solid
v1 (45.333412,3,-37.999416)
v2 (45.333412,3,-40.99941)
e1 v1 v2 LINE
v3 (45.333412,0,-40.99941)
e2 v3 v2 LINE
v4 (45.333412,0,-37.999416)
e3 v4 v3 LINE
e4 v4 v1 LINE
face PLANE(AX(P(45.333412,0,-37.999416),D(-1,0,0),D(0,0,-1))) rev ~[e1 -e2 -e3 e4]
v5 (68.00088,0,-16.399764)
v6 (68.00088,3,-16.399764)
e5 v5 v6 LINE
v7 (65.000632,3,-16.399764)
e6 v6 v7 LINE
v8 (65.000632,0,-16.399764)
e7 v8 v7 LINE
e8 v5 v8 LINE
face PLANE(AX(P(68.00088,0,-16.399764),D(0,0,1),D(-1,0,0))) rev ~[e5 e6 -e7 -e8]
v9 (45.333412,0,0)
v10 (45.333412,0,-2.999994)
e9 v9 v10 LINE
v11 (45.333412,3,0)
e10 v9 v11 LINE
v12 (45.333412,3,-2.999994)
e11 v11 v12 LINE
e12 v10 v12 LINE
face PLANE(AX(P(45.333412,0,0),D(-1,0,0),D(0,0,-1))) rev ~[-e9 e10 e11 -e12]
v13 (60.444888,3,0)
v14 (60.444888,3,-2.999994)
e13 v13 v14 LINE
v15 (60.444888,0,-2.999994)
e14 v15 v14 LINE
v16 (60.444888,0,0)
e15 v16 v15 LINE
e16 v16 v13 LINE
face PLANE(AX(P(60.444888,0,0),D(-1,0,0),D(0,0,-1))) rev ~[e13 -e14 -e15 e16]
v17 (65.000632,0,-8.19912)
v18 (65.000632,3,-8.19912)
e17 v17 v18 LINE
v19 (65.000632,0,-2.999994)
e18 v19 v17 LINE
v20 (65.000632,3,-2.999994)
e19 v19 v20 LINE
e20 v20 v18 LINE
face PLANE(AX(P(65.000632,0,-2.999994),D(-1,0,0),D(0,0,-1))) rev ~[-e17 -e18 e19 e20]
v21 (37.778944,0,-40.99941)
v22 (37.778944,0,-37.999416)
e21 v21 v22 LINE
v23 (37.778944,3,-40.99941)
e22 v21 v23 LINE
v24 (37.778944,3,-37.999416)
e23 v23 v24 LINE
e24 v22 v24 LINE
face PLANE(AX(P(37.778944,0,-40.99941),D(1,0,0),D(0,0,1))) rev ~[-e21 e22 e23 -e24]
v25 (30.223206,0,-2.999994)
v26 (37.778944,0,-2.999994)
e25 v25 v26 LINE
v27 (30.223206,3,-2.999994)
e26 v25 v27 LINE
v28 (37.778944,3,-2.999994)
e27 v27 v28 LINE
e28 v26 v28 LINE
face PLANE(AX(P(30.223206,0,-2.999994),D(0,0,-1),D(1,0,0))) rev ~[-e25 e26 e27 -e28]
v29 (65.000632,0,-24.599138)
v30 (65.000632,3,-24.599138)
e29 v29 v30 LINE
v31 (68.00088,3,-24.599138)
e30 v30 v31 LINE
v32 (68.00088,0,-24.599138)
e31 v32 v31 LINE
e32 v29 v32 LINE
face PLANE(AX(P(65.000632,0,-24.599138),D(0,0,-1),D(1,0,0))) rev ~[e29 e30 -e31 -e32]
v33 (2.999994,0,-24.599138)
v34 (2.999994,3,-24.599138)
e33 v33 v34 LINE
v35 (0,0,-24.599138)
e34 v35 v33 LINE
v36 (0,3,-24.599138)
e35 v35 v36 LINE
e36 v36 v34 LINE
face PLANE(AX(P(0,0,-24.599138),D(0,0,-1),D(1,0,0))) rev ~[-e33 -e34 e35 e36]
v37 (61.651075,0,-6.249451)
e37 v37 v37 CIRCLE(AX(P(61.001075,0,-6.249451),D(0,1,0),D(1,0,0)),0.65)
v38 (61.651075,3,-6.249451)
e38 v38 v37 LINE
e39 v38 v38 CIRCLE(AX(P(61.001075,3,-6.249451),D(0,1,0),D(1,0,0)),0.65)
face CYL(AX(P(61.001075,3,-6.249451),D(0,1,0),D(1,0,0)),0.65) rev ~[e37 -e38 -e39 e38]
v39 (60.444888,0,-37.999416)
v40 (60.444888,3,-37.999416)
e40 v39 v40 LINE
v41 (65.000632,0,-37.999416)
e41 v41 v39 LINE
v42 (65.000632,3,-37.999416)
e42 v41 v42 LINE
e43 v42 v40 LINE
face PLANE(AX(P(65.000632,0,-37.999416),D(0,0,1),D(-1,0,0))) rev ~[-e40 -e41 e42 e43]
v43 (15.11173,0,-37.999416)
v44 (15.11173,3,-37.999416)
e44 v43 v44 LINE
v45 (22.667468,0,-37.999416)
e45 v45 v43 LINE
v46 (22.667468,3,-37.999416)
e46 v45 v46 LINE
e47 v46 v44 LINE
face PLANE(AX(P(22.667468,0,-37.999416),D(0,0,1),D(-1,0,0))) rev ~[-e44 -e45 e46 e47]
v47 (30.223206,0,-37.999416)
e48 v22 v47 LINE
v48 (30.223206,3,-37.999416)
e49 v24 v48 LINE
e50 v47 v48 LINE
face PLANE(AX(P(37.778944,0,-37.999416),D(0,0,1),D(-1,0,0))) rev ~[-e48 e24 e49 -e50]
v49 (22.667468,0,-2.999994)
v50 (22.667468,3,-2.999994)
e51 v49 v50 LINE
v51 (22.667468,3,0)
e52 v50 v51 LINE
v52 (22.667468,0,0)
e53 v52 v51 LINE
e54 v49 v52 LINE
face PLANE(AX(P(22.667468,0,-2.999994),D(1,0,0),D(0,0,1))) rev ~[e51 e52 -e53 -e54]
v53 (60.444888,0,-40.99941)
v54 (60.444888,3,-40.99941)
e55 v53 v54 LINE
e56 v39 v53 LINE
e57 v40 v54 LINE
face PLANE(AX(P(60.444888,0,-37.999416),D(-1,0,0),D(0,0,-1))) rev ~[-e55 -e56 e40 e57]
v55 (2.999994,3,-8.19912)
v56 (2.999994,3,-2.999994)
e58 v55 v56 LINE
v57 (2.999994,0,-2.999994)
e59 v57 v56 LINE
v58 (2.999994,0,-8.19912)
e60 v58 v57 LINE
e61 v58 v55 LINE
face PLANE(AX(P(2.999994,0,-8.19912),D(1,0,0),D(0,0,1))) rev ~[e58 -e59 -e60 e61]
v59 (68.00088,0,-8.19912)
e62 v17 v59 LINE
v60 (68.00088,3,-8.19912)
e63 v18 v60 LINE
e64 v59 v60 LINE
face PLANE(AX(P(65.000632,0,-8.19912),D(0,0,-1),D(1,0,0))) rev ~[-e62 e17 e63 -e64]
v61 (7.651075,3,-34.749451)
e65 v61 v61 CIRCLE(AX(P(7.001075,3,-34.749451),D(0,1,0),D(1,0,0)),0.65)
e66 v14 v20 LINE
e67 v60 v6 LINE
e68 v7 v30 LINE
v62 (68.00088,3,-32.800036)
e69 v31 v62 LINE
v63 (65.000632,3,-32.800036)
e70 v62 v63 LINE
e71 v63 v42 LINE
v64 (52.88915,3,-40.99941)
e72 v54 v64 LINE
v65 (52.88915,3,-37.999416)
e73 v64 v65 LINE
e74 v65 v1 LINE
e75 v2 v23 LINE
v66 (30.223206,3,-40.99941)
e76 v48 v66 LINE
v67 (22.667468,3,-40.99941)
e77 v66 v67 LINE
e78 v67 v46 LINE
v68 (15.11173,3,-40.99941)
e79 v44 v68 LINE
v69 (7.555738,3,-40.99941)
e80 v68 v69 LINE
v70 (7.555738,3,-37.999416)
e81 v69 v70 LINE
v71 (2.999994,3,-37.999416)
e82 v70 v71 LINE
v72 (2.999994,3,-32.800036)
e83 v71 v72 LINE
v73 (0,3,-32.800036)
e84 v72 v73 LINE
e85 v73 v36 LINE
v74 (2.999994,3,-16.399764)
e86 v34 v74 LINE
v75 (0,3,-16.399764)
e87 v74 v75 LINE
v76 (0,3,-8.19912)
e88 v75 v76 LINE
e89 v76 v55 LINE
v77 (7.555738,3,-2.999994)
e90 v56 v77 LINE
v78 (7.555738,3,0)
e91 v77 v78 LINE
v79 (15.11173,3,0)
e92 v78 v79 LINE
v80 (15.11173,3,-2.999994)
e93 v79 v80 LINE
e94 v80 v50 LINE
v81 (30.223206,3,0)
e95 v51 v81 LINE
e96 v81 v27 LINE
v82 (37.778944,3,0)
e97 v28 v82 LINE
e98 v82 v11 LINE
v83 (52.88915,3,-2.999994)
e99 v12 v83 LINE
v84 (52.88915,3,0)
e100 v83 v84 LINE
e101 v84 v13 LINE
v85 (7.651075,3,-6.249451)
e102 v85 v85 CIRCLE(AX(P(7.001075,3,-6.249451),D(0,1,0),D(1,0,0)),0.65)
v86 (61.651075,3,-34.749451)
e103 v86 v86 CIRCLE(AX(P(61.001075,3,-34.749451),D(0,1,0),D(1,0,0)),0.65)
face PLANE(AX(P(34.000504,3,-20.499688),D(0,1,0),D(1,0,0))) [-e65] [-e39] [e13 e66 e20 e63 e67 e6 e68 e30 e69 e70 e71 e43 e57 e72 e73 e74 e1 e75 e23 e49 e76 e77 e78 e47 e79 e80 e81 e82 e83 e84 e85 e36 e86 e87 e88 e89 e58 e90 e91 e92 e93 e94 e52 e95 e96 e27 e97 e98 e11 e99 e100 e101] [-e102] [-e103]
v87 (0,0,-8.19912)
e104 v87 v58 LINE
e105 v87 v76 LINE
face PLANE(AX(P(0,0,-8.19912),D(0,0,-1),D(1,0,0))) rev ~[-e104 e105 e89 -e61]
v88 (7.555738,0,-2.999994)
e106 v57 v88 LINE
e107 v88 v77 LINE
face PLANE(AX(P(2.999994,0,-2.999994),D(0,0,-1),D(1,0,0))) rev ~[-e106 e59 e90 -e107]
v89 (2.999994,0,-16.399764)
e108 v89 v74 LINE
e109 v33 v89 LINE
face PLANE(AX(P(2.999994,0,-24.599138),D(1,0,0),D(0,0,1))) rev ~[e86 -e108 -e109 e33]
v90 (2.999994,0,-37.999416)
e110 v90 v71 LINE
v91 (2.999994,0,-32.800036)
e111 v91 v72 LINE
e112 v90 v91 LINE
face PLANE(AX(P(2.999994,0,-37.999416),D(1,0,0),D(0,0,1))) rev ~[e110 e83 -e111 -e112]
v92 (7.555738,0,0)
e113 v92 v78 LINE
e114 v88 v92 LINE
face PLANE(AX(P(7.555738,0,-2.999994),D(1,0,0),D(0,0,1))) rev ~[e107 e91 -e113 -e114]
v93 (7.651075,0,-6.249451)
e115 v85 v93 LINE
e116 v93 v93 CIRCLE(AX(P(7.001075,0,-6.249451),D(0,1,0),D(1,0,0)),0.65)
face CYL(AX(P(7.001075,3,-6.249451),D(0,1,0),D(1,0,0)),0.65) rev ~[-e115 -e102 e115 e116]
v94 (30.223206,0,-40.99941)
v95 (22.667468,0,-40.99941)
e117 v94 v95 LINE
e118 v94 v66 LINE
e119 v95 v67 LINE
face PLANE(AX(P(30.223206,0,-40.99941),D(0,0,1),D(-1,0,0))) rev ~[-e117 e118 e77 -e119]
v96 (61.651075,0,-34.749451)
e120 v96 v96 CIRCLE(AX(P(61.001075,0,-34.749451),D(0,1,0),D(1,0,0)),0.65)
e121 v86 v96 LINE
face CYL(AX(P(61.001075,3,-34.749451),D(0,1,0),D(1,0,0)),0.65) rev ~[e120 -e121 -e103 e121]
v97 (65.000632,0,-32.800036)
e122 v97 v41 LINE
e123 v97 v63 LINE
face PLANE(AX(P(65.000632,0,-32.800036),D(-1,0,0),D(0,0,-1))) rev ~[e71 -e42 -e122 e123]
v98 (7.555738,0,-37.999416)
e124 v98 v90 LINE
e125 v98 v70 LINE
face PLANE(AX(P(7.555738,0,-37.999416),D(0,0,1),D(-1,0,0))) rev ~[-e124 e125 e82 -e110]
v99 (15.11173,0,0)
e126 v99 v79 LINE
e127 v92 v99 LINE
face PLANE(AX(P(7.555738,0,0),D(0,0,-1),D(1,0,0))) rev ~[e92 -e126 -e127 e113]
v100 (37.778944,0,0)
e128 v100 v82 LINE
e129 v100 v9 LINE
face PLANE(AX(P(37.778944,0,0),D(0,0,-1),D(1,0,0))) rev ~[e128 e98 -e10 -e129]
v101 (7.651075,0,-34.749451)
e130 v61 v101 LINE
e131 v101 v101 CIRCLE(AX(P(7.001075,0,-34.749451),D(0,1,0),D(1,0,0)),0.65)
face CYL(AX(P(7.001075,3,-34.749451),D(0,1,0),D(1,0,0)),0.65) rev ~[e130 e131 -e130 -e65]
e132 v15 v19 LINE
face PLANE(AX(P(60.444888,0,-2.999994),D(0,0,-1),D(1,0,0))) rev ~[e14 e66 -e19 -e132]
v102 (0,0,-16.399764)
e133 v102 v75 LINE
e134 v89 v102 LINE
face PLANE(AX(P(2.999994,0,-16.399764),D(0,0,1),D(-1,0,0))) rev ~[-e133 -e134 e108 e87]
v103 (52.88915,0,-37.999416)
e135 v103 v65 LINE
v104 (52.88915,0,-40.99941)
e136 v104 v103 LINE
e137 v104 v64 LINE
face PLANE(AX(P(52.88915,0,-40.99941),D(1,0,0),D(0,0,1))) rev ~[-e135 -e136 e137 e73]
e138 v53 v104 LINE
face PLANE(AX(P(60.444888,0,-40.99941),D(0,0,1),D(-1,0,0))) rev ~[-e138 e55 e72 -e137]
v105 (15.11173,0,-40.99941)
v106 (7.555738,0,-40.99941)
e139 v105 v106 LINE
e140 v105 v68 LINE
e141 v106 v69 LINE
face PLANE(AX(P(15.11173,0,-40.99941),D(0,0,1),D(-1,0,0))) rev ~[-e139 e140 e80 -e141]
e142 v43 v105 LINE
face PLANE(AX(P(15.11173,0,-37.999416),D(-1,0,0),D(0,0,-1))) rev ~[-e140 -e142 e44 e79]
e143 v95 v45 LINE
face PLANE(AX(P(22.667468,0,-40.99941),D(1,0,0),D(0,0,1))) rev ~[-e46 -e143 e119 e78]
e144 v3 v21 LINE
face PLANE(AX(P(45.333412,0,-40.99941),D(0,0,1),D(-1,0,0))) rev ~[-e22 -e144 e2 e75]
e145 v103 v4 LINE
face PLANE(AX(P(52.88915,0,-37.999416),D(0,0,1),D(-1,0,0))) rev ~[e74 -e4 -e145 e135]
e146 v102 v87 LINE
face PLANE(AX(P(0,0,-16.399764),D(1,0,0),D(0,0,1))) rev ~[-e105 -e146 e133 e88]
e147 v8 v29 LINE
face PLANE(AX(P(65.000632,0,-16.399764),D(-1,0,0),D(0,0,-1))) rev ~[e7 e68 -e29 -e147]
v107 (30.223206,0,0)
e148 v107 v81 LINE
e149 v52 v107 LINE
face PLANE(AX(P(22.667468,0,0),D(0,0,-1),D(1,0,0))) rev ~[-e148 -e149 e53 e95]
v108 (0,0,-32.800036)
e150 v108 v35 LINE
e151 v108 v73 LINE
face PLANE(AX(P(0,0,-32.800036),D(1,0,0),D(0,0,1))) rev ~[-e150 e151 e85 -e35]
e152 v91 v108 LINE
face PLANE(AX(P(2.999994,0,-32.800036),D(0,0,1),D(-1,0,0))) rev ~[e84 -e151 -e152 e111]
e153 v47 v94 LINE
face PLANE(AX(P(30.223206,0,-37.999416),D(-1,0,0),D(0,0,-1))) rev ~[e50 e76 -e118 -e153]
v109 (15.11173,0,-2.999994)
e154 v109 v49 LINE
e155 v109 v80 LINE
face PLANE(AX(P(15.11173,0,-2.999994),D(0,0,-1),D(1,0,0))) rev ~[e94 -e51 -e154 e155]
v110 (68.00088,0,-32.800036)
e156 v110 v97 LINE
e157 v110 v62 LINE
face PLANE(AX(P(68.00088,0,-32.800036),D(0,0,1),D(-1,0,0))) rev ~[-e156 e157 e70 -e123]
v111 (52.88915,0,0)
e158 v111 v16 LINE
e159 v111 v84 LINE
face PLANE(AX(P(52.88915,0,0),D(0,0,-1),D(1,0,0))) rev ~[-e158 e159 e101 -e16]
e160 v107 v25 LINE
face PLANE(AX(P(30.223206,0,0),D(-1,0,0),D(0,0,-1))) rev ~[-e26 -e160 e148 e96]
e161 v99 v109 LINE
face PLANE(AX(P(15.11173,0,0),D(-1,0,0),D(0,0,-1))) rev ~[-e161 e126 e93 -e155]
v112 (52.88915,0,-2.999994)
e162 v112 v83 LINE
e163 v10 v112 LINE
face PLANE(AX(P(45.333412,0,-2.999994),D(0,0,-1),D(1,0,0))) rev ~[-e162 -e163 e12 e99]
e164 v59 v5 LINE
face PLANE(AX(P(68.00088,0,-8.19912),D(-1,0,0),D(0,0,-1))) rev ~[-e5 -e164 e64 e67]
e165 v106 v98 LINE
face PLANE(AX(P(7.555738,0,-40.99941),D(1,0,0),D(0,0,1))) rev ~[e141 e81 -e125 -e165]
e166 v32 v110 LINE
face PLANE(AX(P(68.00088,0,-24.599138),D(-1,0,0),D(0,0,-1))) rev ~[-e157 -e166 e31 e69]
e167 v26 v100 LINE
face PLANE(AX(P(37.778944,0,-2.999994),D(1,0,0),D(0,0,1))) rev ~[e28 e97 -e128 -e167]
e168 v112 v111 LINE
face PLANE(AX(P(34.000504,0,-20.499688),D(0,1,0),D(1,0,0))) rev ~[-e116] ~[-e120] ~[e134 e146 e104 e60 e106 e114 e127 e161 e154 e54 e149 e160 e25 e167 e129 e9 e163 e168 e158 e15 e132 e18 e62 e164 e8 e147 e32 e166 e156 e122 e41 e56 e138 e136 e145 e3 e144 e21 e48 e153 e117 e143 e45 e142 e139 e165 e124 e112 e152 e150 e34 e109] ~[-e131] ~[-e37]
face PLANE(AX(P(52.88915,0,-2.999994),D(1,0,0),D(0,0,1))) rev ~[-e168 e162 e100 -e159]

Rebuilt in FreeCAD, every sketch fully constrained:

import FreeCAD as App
import Part
import Sketcher
Q = App.Units.Quantity


def add_polygon(sketch, points):
    """Adds a closed chain of lines whose ends are joined by coincident constraints."""
    first, n = sketch.GeometryCount, len(points)
    for a, b in zip(points, points[1:] + points[:1]):
        sketch.addGeometry(Part.LineSegment(App.Vector(*a, 0), App.Vector(*b, 0)), False)
    for i in range(n):
        sketch.addConstraint(Sketcher.Constraint("Coincident", first + i, 2, first + (i + 1) % n, 1))

doc = App.newDocument("Part")
body = doc.addObject("PartDesign::Body", "Body")

# Sketch on XZ plane
sketch1 = doc.addObject("Sketcher::SketchObject", "Sketch")
body.addObject(sketch1)
sketch1.AttachmentSupport = (doc.XZ_Plane, [""])
sketch1.MapMode = "FlatFace"
add_polygon(sketch1, [(2.999994, -37.999416), (2.999994, -32.800036), (0, -32.800036), (0, -24.599138), (2.999994, -24.599138), (2.999994, -16.399764), (0, -16.399764), (0, -8.19912), (2.999994, -8.19912), (2.999994, -2.999994), (7.555738, -2.999994), (7.555738, 0), (15.11173, 0), (15.11173, -2.999994), (22.667468, -2.999994), (22.667468, 0), (30.223206, 0), (30.223206, -2.999994), (37.778944, -2.999994), (37.778944, 0), (45.333412, 0), (45.333412, -2.999994), (52.88915, -2.999994), (52.88915, 0), (60.444888, 0), (60.444888, -2.999994), (65.000632, -2.999994), (65.000632, -8.19912), (68.00088, -8.19912), (68.00088, -16.399764), (65.000632, -16.399764), (65.000632, -24.599138), (68.00088, -24.599138), (68.00088, -32.800036), (65.000632, -32.800036), (65.000632, -37.999416), (60.444888, -37.999416), (60.444888, -40.99941), (52.88915, -40.99941), (52.88915, -37.999416), (45.333412, -37.999416), (45.333412, -40.99941), (37.778944, -40.99941), (37.778944, -37.999416), (30.223206, -37.999416), (30.223206, -40.99941), (22.667468, -40.99941), (22.667468, -37.999416), (15.11173, -37.999416), (15.11173, -40.99941), (7.555738, -40.99941), (7.555738, -37.999416)])  # lines 0-51
sketch1.addConstraint(Sketcher.Constraint("Vertical", 0))
sketch1.addConstraint(Sketcher.Constraint("Horizontal", 1))
sketch1.addConstraint(Sketcher.Constraint("Vertical", 2))
sketch1.addConstraint(Sketcher.Constraint("Horizontal", 3))
sketch1.addConstraint(Sketcher.Constraint("Vertical", 4))
sketch1.addConstraint(Sketcher.Constraint("Horizontal", 5))
sketch1.addConstraint(Sketcher.Constraint("Vertical", 6))
sketch1.addConstraint(Sketcher.Constraint("Horizontal", 7))
sketch1.addConstraint(Sketcher.Constraint("Vertical", 8))
sketch1.addConstraint(Sketcher.Constraint("Horizontal", 9))
sketch1.addConstraint(Sketcher.Constraint("Vertical", 10))
sketch1.addConstraint(Sketcher.Constraint("Horizontal", 11))
sketch1.addConstraint(Sketcher.Constraint("Vertical", 12))
sketch1.addConstraint(Sketcher.Constraint("Horizontal", 13))
sketch1.addConstraint(Sketcher.Constraint("Vertical", 14))
sketch1.addConstraint(Sketcher.Constraint("Horizontal", 15))
sketch1.addConstraint(Sketcher.Constraint("Vertical", 16))
sketch1.addConstraint(Sketcher.Constraint("Horizontal", 17))
sketch1.addConstraint(Sketcher.Constraint("Vertical", 18))
sketch1.addConstraint(Sketcher.Constraint("Horizontal", 19))
sketch1.addConstraint(Sketcher.Constraint("Vertical", 20))
sketch1.addConstraint(Sketcher.Constraint("Horizontal", 21))
sketch1.addConstraint(Sketcher.Constraint("Vertical", 22))
sketch1.addConstraint(Sketcher.Constraint("Horizontal", 23))
sketch1.addConstraint(Sketcher.Constraint("Vertical", 24))
sketch1.addConstraint(Sketcher.Constraint("Horizontal", 25))
sketch1.addConstraint(Sketcher.Constraint("Vertical", 26))
sketch1.addConstraint(Sketcher.Constraint("Horizontal", 27))
sketch1.addConstraint(Sketcher.Constraint("Vertical", 28))
sketch1.addConstraint(Sketcher.Constraint("Horizontal", 29))
sketch1.addConstraint(Sketcher.Constraint("Vertical", 30))
sketch1.addConstraint(Sketcher.Constraint("Horizontal", 31))
sketch1.addConstraint(Sketcher.Constraint("Vertical", 32))
sketch1.addConstraint(Sketcher.Constraint("Horizontal", 33))
sketch1.addConstraint(Sketcher.Constraint("Vertical", 34))
sketch1.addConstraint(Sketcher.Constraint("Horizontal", 35))
sketch1.addConstraint(Sketcher.Constraint("Vertical", 36))
sketch1.addConstraint(Sketcher.Constraint("Horizontal", 37))
sketch1.addConstraint(Sketcher.Constraint("Vertical", 38))
sketch1.addConstraint(Sketcher.Constraint("Horizontal", 39))
sketch1.addConstraint(Sketcher.Constraint("Vertical", 40))
sketch1.addConstraint(Sketcher.Constraint("Horizontal", 41))
sketch1.addConstraint(Sketcher.Constraint("Vertical", 42))
sketch1.addConstraint(Sketcher.Constraint("Horizontal", 43))
sketch1.addConstraint(Sketcher.Constraint("Vertical", 44))
sketch1.addConstraint(Sketcher.Constraint("Horizontal", 45))
sketch1.addConstraint(Sketcher.Constraint("Vertical", 46))
sketch1.addConstraint(Sketcher.Constraint("Horizontal", 47))
sketch1.addConstraint(Sketcher.Constraint("Vertical", 48))
sketch1.addConstraint(Sketcher.Constraint("Horizontal", 49))
sketch1.addConstraint(Sketcher.Constraint("Vertical", 50))
sketch1.addConstraint(Sketcher.Constraint("Horizontal", 51))
sketch1.addConstraint(Sketcher.Constraint("PointOnObject", 1, 2, -2))
sketch1.addConstraint(Sketcher.Constraint("PointOnObject", 5, 2, -2))
sketch1.addConstraint(Sketcher.Constraint("PointOnObject", 10, 2, -1))
sketch1.addConstraint(Sketcher.Constraint("PointOnObject", 14, 2, -1))
sketch1.addConstraint(Sketcher.Constraint("PointOnObject", 18, 2, -1))
sketch1.addConstraint(Sketcher.Constraint("PointOnObject", 22, 2, -1))
sketch1.addConstraint(Sketcher.Constraint("Horizontal", 9, 2, 12, 2))
sketch1.addConstraint(Sketcher.Constraint("Horizontal", 13, 2, 16, 2))
sketch1.addConstraint(Sketcher.Constraint("Horizontal", 17, 2, 20, 2))
sketch1.addConstraint(Sketcher.Constraint("Horizontal", 21, 2, 24, 2))
sketch1.addConstraint(Sketcher.Constraint("Horizontal", 7, 2, 26, 2))
sketch1.addConstraint(Sketcher.Constraint("Horizontal", 5, 2, 28, 2))
sketch1.addConstraint(Sketcher.Constraint("Horizontal", 3, 2, 30, 2))
sketch1.addConstraint(Sketcher.Constraint("Horizontal", 1, 2, 32, 2))
sketch1.addConstraint(Sketcher.Constraint("Horizontal", 35, 2, 38, 2))
sketch1.addConstraint(Sketcher.Constraint("Horizontal", 37, 2, 40, 2))
sketch1.addConstraint(Sketcher.Constraint("Horizontal", 39, 2, 42, 2))
sketch1.addConstraint(Sketcher.Constraint("Horizontal", 41, 2, 44, 2))
sketch1.addConstraint(Sketcher.Constraint("Horizontal", 43, 2, 46, 2))
sketch1.addConstraint(Sketcher.Constraint("Horizontal", 45, 2, 48, 2))
sketch1.addConstraint(Sketcher.Constraint("Horizontal", 47, 2, 50, 2))
sketch1.addConstraint(Sketcher.Constraint("Vertical", 0, 2, 3, 2))
sketch1.addConstraint(Sketcher.Constraint("Vertical", 4, 2, 7, 2))
sketch1.addConstraint(Sketcher.Constraint("Vertical", 26, 2, 29, 2))
sketch1.addConstraint(Sketcher.Constraint("Vertical", 28, 2, 31, 2))
sketch1.addConstraint(Sketcher.Constraint("Vertical", 30, 2, 33, 2))
sketch1.addConstraint(Sketcher.Constraint("Vertical", 24, 2, 35, 2))
sketch1.addConstraint(Sketcher.Constraint("Vertical", 22, 2, 37, 2))
sketch1.addConstraint(Sketcher.Constraint("Vertical", 20, 2, 39, 2))
sketch1.addConstraint(Sketcher.Constraint("Vertical", 18, 2, 41, 2))
sketch1.addConstraint(Sketcher.Constraint("Vertical", 16, 2, 43, 2))
sketch1.addConstraint(Sketcher.Constraint("Vertical", 14, 2, 45, 2))
sketch1.addConstraint(Sketcher.Constraint("Vertical", 12, 2, 47, 2))
sketch1.addConstraint(Sketcher.Constraint("Vertical", 10, 2, 49, 2))
sketch1.addConstraint(Sketcher.Constraint("Equal", 13, 15))
sketch1.addConstraint(Sketcher.Constraint("Equal", 15, 17))
sketch1.addConstraint(Sketcher.Constraint("Equal", 17, 21))
sketch1.addConstraint(Sketcher.Constraint("Equal", 21, 23))
sketch1.addConstraint(Sketcher.Constraint("Equal", 9, 25))
sketch1.addConstraint(Sketcher.Constraint("Equal", 7, 10))
sketch1.addConstraint(Sketcher.Constraint("Equal", 24, 36))
sketch1.addConstraint(Sketcher.Constraint("DistanceX", 11, 1, 11, 2, Q("7.555992 mm")))
sketch1.addConstraint(Sketcher.Constraint("DistanceX", 15, 1, 15, 2, Q("7.555738 mm")))
sketch1.addConstraint(Sketcher.Constraint("DistanceY", 0, 1, 0, 2, Q("5.19938 mm")))
sketch1.addConstraint(Sketcher.Constraint("DistanceX", 1, 2, 1, 1, Q("2.999994 mm")))
sketch1.addConstraint(Sketcher.Constraint("DistanceX", 9, 1, 9, 2, Q("4.555744 mm")))
sketch1.addConstraint(Sketcher.Constraint("DistanceX", 19, 1, 19, 2, Q("7.554468 mm")))
sketch1.addConstraint(Sketcher.Constraint("DistanceX", 27, 1, 27, 2, Q("3.000248 mm")))
sketch1.addConstraint(Sketcher.Constraint("DistanceY", 2, 1, 2, 2, Q("8.200898 mm")))
sketch1.addConstraint(Sketcher.Constraint("DistanceY", 4, 1, 4, 2, Q("8.199374 mm")))
sketch1.addConstraint(Sketcher.Constraint("DistanceY", 6, 1, 6, 2, Q("8.200644 mm")))
sketch1.addConstraint(Sketcher.Constraint("DistanceY", 8, 1, 8, 2, Q("5.199126 mm")))
pad1 = doc.addObject("PartDesign::Pad", "Pad")
body.addObject(pad1)
pad1.Profile = sketch1
pad1.Length = 3
pad1.Reversed = True

# Sketch on XZ plane
sketch2 = doc.addObject("Sketcher::SketchObject", "Sketch001")
body.addObject(sketch2)
sketch2.AttachmentSupport = (doc.XZ_Plane, [""])
sketch2.MapMode = "FlatFace"
sketch2.AttachmentOffset = App.Placement(App.Vector(0, 0, -3), App.Rotation())
sketch2.addGeometry(Part.Circle(App.Vector(7.001075, -34.749451, 0), App.Vector(0, 0, 1), 0.65), False)
sketch2.addConstraint(Sketcher.Constraint("Diameter", 0, Q("1.3 mm")))
sketch2.addConstraint(Sketcher.Constraint("DistanceY", 0, 3, -1, 1, Q("34.749451 mm")))
sketch2.addConstraint(Sketcher.Constraint("DistanceX", -1, 1, 0, 3, Q("7.001075 mm")))
pocket1 = doc.addObject("PartDesign::Pocket", "Pocket")
body.addObject(pocket1)
pocket1.Profile = sketch2
pocket1.Type = "UpToFirst"
pocket1.Reversed = True

# Sketch on XZ plane
sketch3 = doc.addObject("Sketcher::SketchObject", "Sketch002")
body.addObject(sketch3)
sketch3.AttachmentSupport = (doc.XZ_Plane, [""])
sketch3.MapMode = "FlatFace"
sketch3.AttachmentOffset = App.Placement(App.Vector(0, 0, -3), App.Rotation())
sketch3.addGeometry(Part.Circle(App.Vector(61.001075, -34.749451, 0), App.Vector(0, 0, 1), 0.65), False)
sketch3.addConstraint(Sketcher.Constraint("Diameter", 0, Q("1.3 mm")))
sketch3.addConstraint(Sketcher.Constraint("DistanceY", 0, 3, -1, 1, Q("34.749451 mm")))
sketch3.addConstraint(Sketcher.Constraint("DistanceX", -1, 1, 0, 3, Q("61.001075 mm")))
pocket2 = doc.addObject("PartDesign::Pocket", "Pocket001")
body.addObject(pocket2)
pocket2.Profile = sketch3
pocket2.Type = "UpToFirst"
pocket2.Reversed = True

# Sketch on XZ plane
sketch4 = doc.addObject("Sketcher::SketchObject", "Sketch003")
body.addObject(sketch4)
sketch4.AttachmentSupport = (doc.XZ_Plane, [""])
sketch4.MapMode = "FlatFace"
sketch4.AttachmentOffset = App.Placement(App.Vector(0, 0, -3), App.Rotation())
sketch4.addGeometry(Part.Circle(App.Vector(61.001075, -6.249451, 0), App.Vector(0, 0, 1), 0.65), False)
sketch4.addConstraint(Sketcher.Constraint("Diameter", 0, Q("1.3 mm")))
sketch4.addConstraint(Sketcher.Constraint("DistanceY", 0, 3, -1, 1, Q("6.249451 mm")))
sketch4.addConstraint(Sketcher.Constraint("DistanceX", -1, 1, 0, 3, Q("61.001075 mm")))
pocket3 = doc.addObject("PartDesign::Pocket", "Pocket002")
body.addObject(pocket3)
pocket3.Profile = sketch4
pocket3.Type = "UpToFirst"
pocket3.Reversed = True

# Sketch on XZ plane
sketch5 = doc.addObject("Sketcher::SketchObject", "Sketch004")
body.addObject(sketch5)
sketch5.AttachmentSupport = (doc.XZ_Plane, [""])
sketch5.MapMode = "FlatFace"
sketch5.AttachmentOffset = App.Placement(App.Vector(0, 0, -3), App.Rotation())
sketch5.addGeometry(Part.Circle(App.Vector(7.001075, -6.249451, 0), App.Vector(0, 0, 1), 0.65), False)
sketch5.addConstraint(Sketcher.Constraint("Diameter", 0, Q("1.3 mm")))
sketch5.addConstraint(Sketcher.Constraint("DistanceY", 0, 3, -1, 1, Q("6.249451 mm")))
sketch5.addConstraint(Sketcher.Constraint("DistanceX", -1, 1, 0, 3, Q("7.001075 mm")))
pocket4 = doc.addObject("PartDesign::Pocket", "Pocket003")
body.addObject(pocket4)
pocket4.Profile = sketch5
pocket4.Type = "UpToFirst"
pocket4.Reversed = True

doc.recompute()
